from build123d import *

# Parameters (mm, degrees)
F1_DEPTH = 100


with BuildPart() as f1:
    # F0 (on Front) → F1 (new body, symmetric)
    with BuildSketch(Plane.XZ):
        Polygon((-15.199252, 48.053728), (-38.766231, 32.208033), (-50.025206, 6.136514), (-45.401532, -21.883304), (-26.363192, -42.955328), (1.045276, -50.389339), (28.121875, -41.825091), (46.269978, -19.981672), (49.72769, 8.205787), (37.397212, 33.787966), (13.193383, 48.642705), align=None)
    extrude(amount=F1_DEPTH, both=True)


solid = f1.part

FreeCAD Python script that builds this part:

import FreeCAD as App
import Part
import Sketcher
Q = App.Units.Quantity


def add_polygon(sketch, points):
    """Adds a closed chain of lines whose ends are joined by coincident constraints."""
    first, n = sketch.GeometryCount, len(points)
    for a, b in zip(points, points[1:] + points[:1]):
        sketch.addGeometry(Part.LineSegment(App.Vector(*a, 0), App.Vector(*b, 0)), False)
    for i in range(n):
        sketch.addConstraint(Sketcher.Constraint("Coincident", first + i, 2, first + (i + 1) % n, 1))

doc = App.newDocument("Part")
params = doc.addObject("Spreadsheet::Sheet", "Params")
for row, (alias, value) in enumerate([
    ("pad1_length", "200 mm"),
], start=1):
    params.set(f"A{row}", alias)
    params.set(f"B{row}", "=" + value)
    params.setAlias(f"B{row}", alias)

body = doc.addObject("PartDesign::Body", "Body")

sketch1 = body.newObject("Sketcher::SketchObject", "Sketch")
sketch1.AttachmentSupport = (doc.getObject("XZ_Plane"), [""])
sketch1.MapMode = "FlatFace"
add_polygon(sketch1, [(-15, 48), (-39, 32), (-50, 6), (-45, -22), (-26, -43), (1, -50), (28, -42), (46, -20), (50, 8), (37, 34), (13, 49)])
sketch1.addConstraint([
    Sketcher.Constraint("Equal", 0, 1),
    Sketcher.Constraint("Equal", 1, 2),
    Sketcher.Constraint("Equal", 2, 3),
    Sketcher.Constraint("Equal", 3, 4),
    Sketcher.Constraint("Equal", 4, 5),
    Sketcher.Constraint("Equal", 5, 6),
    Sketcher.Constraint("Equal", 6, 7),
    Sketcher.Constraint("Equal", 7, 8),
    Sketcher.Constraint("Equal", 8, 9),
    Sketcher.Constraint("Equal", 9, 10),
    Sketcher.Constraint("DistanceX", 2, 2, 0, 2, Q("6.635301 mm")),
    Sketcher.Constraint("DistanceX", 4, 2, 5, 2, Q("27.076599 mm")),
    Sketcher.Constraint("DistanceX", 0, 2, -1, 1, Q("38.766231 mm")),
    Sketcher.Constraint("DistanceY", 3, 2, -1, 1, Q("42.955328 mm")),
    Sketcher.Constraint("DistanceY", 4, 2, -1, 1, Q("50.389339 mm")),
    Sketcher.Constraint("DistanceY", 5, 2, -1, 1, Q("41.825091 mm")),
    Sketcher.Constraint("DistanceX", -1, 1, 6, 2, Q("46.269978 mm")),
    Sketcher.Constraint("DistanceY", 6, 2, -1, 1, Q("19.981672 mm")),
    Sketcher.Constraint("DistanceX", -1, 1, 7, 2, Q("49.72769 mm")),
    Sketcher.Constraint("DistanceY", 1, 2, 0, 2, Q("26.071519 mm")),
    Sketcher.Constraint("DistanceY", 7, 2, 8, 2, Q("25.582179 mm")),
    Sketcher.Constraint("DistanceX", 9, 2, 8, 2, Q("24.203829 mm")),
])
pad1 = body.newObject("PartDesign::Pad", "Pad")
pad1.Profile = sketch1
pad1.setExpression("Length", "Params.pad1_length")
pad1.Midplane = True

doc.recompute()
